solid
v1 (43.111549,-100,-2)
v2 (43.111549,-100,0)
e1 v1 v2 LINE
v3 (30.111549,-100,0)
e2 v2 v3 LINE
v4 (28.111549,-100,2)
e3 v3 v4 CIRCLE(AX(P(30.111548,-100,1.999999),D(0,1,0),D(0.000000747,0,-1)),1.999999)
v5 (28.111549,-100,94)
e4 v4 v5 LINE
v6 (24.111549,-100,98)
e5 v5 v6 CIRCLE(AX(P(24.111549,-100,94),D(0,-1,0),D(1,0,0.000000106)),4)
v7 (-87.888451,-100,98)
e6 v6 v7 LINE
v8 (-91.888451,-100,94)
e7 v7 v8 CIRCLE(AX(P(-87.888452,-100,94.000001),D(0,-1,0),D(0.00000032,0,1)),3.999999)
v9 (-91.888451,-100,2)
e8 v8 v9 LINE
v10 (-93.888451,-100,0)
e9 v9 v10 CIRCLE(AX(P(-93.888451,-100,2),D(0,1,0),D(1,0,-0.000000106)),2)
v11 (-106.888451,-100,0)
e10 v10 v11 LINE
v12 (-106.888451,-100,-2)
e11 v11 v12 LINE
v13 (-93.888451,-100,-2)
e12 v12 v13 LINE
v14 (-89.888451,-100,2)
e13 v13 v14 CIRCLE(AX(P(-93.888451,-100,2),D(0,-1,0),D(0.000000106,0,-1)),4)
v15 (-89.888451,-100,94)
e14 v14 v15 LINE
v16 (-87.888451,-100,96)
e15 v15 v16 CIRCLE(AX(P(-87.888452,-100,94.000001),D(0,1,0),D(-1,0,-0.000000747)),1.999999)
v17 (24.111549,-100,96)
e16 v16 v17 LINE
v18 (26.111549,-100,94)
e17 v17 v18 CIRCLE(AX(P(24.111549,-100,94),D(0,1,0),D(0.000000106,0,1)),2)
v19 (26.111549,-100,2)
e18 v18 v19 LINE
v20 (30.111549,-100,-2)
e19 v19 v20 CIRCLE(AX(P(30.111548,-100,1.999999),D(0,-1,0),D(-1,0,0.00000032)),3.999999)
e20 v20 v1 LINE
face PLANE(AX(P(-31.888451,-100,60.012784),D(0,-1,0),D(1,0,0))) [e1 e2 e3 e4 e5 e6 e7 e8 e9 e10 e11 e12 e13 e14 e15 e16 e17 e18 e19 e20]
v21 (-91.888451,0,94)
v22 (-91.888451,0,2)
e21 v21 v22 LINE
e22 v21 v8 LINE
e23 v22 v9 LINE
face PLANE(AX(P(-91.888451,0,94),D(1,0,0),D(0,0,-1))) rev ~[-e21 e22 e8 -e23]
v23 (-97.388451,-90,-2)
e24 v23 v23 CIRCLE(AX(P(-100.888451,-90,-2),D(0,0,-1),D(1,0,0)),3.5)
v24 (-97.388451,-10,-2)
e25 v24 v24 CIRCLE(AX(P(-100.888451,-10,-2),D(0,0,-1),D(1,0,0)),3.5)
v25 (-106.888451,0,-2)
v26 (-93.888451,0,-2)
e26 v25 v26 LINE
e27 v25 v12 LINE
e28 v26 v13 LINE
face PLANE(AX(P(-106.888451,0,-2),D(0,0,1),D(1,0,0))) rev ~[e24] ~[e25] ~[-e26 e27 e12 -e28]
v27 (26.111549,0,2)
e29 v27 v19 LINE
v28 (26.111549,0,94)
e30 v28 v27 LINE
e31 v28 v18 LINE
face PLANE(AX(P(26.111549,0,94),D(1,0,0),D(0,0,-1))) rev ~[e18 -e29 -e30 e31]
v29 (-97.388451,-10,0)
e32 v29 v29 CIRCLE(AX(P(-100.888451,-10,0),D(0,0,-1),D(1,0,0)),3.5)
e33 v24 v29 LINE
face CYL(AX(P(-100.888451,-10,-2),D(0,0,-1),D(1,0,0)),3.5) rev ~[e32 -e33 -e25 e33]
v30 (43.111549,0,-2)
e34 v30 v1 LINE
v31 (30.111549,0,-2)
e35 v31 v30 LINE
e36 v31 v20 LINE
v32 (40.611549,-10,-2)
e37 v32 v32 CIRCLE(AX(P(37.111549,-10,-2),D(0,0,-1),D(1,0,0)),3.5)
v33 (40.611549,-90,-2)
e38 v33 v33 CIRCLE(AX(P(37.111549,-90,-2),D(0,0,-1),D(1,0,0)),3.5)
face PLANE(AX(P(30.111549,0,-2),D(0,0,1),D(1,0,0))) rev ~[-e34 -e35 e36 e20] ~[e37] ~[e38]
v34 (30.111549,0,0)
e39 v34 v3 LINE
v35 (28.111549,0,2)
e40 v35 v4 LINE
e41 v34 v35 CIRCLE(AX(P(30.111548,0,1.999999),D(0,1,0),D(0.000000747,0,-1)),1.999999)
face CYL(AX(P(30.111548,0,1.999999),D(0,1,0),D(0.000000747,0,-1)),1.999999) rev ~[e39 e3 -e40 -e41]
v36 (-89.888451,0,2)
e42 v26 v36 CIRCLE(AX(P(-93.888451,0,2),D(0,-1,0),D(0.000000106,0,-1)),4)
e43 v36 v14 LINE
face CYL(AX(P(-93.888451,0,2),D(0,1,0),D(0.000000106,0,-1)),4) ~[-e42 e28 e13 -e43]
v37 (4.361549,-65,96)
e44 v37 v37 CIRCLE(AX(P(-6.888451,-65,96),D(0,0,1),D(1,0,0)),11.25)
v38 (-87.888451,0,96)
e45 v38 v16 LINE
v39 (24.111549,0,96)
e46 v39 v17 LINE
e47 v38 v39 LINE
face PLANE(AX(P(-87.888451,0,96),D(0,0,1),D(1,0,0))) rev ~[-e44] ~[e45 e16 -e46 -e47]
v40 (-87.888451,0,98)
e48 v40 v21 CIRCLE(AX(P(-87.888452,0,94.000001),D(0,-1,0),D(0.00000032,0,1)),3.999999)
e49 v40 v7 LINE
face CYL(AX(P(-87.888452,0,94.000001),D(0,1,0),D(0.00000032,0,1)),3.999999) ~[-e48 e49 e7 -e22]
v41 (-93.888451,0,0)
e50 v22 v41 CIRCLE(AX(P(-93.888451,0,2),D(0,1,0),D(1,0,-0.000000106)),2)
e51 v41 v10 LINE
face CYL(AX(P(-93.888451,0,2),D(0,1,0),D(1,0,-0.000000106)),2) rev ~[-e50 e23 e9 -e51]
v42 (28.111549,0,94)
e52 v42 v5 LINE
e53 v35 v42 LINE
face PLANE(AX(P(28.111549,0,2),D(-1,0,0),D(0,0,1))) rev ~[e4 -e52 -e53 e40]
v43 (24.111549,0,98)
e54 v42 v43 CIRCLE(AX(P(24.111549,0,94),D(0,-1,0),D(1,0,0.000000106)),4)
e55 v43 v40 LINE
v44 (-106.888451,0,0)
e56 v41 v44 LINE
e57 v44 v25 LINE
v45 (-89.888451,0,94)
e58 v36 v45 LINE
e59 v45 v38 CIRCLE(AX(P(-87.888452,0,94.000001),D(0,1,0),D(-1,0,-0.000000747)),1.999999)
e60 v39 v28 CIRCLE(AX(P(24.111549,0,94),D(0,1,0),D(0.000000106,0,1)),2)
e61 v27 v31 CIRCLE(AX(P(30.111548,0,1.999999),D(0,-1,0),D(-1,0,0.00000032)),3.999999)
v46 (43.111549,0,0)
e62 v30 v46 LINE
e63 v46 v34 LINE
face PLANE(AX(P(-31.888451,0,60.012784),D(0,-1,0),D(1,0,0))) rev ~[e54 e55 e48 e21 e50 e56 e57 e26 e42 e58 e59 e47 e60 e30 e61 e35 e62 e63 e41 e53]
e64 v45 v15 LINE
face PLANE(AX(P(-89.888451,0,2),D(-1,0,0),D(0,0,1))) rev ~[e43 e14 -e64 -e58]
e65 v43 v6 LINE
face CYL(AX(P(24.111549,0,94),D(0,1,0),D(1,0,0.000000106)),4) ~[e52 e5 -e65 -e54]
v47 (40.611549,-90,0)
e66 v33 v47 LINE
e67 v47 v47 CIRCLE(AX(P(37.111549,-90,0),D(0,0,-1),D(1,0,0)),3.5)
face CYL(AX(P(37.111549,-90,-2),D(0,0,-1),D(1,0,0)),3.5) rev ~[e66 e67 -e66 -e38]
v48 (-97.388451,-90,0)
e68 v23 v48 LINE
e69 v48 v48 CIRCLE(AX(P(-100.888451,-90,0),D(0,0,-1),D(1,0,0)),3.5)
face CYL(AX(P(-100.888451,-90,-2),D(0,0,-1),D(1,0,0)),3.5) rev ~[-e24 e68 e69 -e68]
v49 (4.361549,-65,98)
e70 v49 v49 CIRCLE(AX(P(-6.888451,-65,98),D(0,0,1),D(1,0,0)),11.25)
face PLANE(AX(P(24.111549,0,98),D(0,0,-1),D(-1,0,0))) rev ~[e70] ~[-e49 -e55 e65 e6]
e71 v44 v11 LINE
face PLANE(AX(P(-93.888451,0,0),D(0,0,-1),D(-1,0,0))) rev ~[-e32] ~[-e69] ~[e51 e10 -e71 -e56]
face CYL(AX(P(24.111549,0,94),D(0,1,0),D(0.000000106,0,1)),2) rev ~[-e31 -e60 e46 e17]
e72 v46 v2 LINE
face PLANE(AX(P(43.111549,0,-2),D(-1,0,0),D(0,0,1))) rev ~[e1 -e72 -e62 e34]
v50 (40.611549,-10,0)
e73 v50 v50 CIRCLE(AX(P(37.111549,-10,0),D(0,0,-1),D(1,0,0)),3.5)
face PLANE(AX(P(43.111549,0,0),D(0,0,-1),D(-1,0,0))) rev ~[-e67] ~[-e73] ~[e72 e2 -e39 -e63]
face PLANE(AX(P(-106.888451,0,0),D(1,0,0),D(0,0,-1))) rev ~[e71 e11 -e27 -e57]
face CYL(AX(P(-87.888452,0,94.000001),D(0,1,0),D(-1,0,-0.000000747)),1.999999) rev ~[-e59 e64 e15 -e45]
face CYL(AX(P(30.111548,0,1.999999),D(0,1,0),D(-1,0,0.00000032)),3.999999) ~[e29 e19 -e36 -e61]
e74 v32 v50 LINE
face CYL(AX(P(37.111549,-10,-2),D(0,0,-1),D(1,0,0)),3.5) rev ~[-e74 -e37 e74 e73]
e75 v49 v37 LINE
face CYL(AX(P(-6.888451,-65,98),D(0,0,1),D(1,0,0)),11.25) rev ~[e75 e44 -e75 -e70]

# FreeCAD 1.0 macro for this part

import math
import FreeCAD as App
import Part
import Sketcher
from FreeCAD import Vector

doc = App.newDocument("Part")
body = doc.addObject("PartDesign::Body", "Body")

# Sketch on XZ plane
sketch1 = body.newObject("Sketcher::SketchObject", "Sketch")
sketch1.AttachmentSupport = (doc.getObject("XZ_Plane"), [""])
sketch1.MapMode = "FlatFace"
sketch1.addGeometry(Part.LineSegment(Vector(-93.9, 0, 0), Vector(-106.9, 0, 0)), False)
sketch1.addGeometry(Part.LineSegment(Vector(-106.9, 0, 0), Vector(-106.9, -2, 0)), False)
sketch1.addGeometry(Part.LineSegment(Vector(-106.9, -2, 0), Vector(-93.9, -2, 0)), False)
sketch1.addGeometry(Part.ArcOfCircle(Part.Circle(Vector(-93.9, 2, 0), Vector(0, 0, 1), 4), math.radians(-90), math.radians(0)), False)
sketch1.addGeometry(Part.LineSegment(Vector(-89.9, 2, 0), Vector(-89.9, 94, 0)), False)
sketch1.addGeometry(Part.ArcOfCircle(Part.Circle(Vector(-87.9, 94, 0), Vector(0, 0, 1), 2), math.radians(90), math.radians(180)), False)
sketch1.addGeometry(Part.LineSegment(Vector(-87.9, 96, 0), Vector(24.1, 96, 0)), False)
sketch1.addGeometry(Part.ArcOfCircle(Part.Circle(Vector(24.1, 94, 0), Vector(0, 0, 1), 2), math.radians(0), math.radians(90)), False)
sketch1.addGeometry(Part.LineSegment(Vector(26.1, 94, 0), Vector(26.1, 2, 0)), False)
sketch1.addGeometry(Part.ArcOfCircle(Part.Circle(Vector(30.1, 2, 0), Vector(0, 0, 1), 4), math.radians(180), math.radians(270)), False)
sketch1.addGeometry(Part.LineSegment(Vector(30.1, -2, 0), Vector(43.1, -2, 0)), False)
sketch1.addGeometry(Part.LineSegment(Vector(43.1, -2, 0), Vector(43.1, 0, 0)), False)
sketch1.addGeometry(Part.LineSegment(Vector(43.1, 0, 0), Vector(30.1, 0, 0)), False)
sketch1.addGeometry(Part.ArcOfCircle(Part.Circle(Vector(30.1, 2, 0), Vector(0, 0, 1), 2), math.radians(180), math.radians(270)), False)
sketch1.addGeometry(Part.LineSegment(Vector(28.1, 2, 0), Vector(28.1, 94, 0)), False)
sketch1.addGeometry(Part.ArcOfCircle(Part.Circle(Vector(24.1, 94, 0), Vector(0, 0, 1), 4), math.radians(0), math.radians(90)), False)
sketch1.addGeometry(Part.LineSegment(Vector(24.1, 98, 0), Vector(-87.9, 98, 0)), False)
sketch1.addGeometry(Part.ArcOfCircle(Part.Circle(Vector(-87.9, 94, 0), Vector(0, 0, 1), 4), math.radians(90), math.radians(180)), False)
sketch1.addGeometry(Part.LineSegment(Vector(-91.9, 94, 0), Vector(-91.9, 2, 0)), False)
sketch1.addGeometry(Part.ArcOfCircle(Part.Circle(Vector(-93.9, 2, 0), Vector(0, 0, 1), 2), math.radians(-90), math.radians(0)), False)
sketch1.addConstraint(Sketcher.Constraint("Coincident", 0, 2, 1, 1))
sketch1.addConstraint(Sketcher.Constraint("Coincident", 1, 2, 2, 1))
sketch1.addConstraint(Sketcher.Constraint("Tangent", 2, 2, 3, 1))
sketch1.addConstraint(Sketcher.Constraint("Tangent", 3, 2, 4, 1))
sketch1.addConstraint(Sketcher.Constraint("Tangent", 4, 2, 5, 2))
sketch1.addConstraint(Sketcher.Constraint("Tangent", 5, 1, 6, 1))
sketch1.addConstraint(Sketcher.Constraint("Tangent", 6, 2, 7, 2))
sketch1.addConstraint(Sketcher.Constraint("Tangent", 7, 1, 8, 1))
sketch1.addConstraint(Sketcher.Constraint("Tangent", 8, 2, 9, 1))
sketch1.addConstraint(Sketcher.Constraint("Tangent", 9, 2, 10, 1))
sketch1.addConstraint(Sketcher.Constraint("Coincident", 10, 2, 11, 1))
sketch1.addConstraint(Sketcher.Constraint("Coincident", 11, 2, 12, 1))
sketch1.addConstraint(Sketcher.Constraint("Tangent", 12, 2, 13, 2))
sketch1.addConstraint(Sketcher.Constraint("Tangent", 13, 1, 14, 1))
sketch1.addConstraint(Sketcher.Constraint("Tangent", 14, 2, 15, 1))
sketch1.addConstraint(Sketcher.Constraint("Tangent", 15, 2, 16, 1))
sketch1.addConstraint(Sketcher.Constraint("Tangent", 16, 2, 17, 1))
sketch1.addConstraint(Sketcher.Constraint("Tangent", 17, 2, 18, 1))
sketch1.addConstraint(Sketcher.Constraint("Tangent", 18, 2, 19, 2))
sketch1.addConstraint(Sketcher.Constraint("Tangent", 19, 1, 0, 1))
sketch1.addConstraint(Sketcher.Constraint("Horizontal", 0))
sketch1.addConstraint(Sketcher.Constraint("Vertical", 1))
sketch1.addConstraint(Sketcher.Constraint("Horizontal", 2))
sketch1.addConstraint(Sketcher.Constraint("Vertical", 4))
sketch1.addConstraint(Sketcher.Constraint("Horizontal", 6))
sketch1.addConstraint(Sketcher.Constraint("Vertical", 8))
sketch1.addConstraint(Sketcher.Constraint("Horizontal", 10))
sketch1.addConstraint(Sketcher.Constraint("Vertical", 11))
sketch1.addConstraint(Sketcher.Constraint("Horizontal", 12))
sketch1.addConstraint(Sketcher.Constraint("Vertical", 14))
sketch1.addConstraint(Sketcher.Constraint("Horizontal", 16))
sketch1.addConstraint(Sketcher.Constraint("Vertical", 18))
sketch1.addConstraint(Sketcher.Constraint("Coincident", 13, 3, 9, 3))
sketch1.addConstraint(Sketcher.Constraint("Coincident", 15, 3, 7, 3))
sketch1.addConstraint(Sketcher.Constraint("Coincident", 17, 3, 5, 3))
sketch1.addConstraint(Sketcher.Constraint("Coincident", 19, 3, 3, 3))
sketch1.addConstraint(Sketcher.Constraint("Equal", 5, 7))
sketch1.addConstraint(Sketcher.Constraint("Equal", 3, 9))
sketch1.addConstraint(Sketcher.Constraint("Equal", 7, 13))
sketch1.addConstraint(Sketcher.Constraint("PointOnObject", 0, 2, -1))
sketch1.addConstraint(Sketcher.Constraint("PointOnObject", 11, 2, -1))
sketch1.addConstraint(Sketcher.Constraint("Equal", 2, 10))
sketch1.addConstraint(Sketcher.Constraint("Radius", 3, 4.0))
sketch1.addConstraint(Sketcher.Constraint("Radius", 5, 1.999999))
sketch1.addConstraint(Sketcher.Constraint("DistanceX", 0, 2, 0, 1, 13.0))
sketch1.addConstraint(Sketcher.Constraint("DistanceX", 6, 1, 6, 2, 112.0))
sketch1.addConstraint(Sketcher.Constraint("DistanceY", 4, 1, 4, 2, 92.0))
sketch1.addConstraint(Sketcher.Constraint("DistanceX", 3, 3, -1, 1, 93.888451))
pad1 = body.newObject("PartDesign::Pad", "Pad")
pad1.Profile = sketch1
pad1.Length = 100

# Sketch on XY plane
sketch2 = body.newObject("Sketcher::SketchObject", "Sketch001")
sketch2.AttachmentSupport = (doc.getObject("XY_Plane"), [""])
sketch2.MapMode = "FlatFace"
sketch2.AttachmentOffset = App.Placement(Vector(0, 0, 98), App.Rotation())
sketch2.addGeometry(Part.Circle(Vector(-7, -65, 0), Vector(0, 0, 1), 11), False)
sketch2.addConstraint(Sketcher.Constraint("Diameter", 0, 22.5))
sketch2.addConstraint(Sketcher.Constraint("DistanceY", 0, 3, -1, 1, 65.0))
sketch2.addConstraint(Sketcher.Constraint("DistanceX", 0, 3, -1, 1, 6.888451))
pocket1 = body.newObject("PartDesign::Pocket", "Pocket")
pocket1.Profile = sketch2
pocket1.Length = 25

# Sketch on XY plane
sketch3 = body.newObject("Sketcher::SketchObject", "Sketch002")
sketch3.AttachmentSupport = (doc.getObject("XY_Plane"), [""])
sketch3.MapMode = "FlatFace"
sketch3.AttachmentOffset = App.Placement(Vector(0, 0, -2), App.Rotation())
sketch3.addGeometry(Part.Circle(Vector(37.1, -90, 0), Vector(0, 0, 1), 3.5), False)
sketch3.addGeometry(Part.Circle(Vector(37.1, -10, 0), Vector(0, 0, 1), 3.5), False)
sketch3.addGeometry(Part.Circle(Vector(-100.9, -10, 0), Vector(0, 0, 1), 3.5), False)
sketch3.addGeometry(Part.Circle(Vector(-100.9, -90, 0), Vector(0, 0, 1), 3.5), False)
sketch3.addConstraint(Sketcher.Constraint("Equal", 0, 1))
sketch3.addConstraint(Sketcher.Constraint("Equal", 1, 2))
sketch3.addConstraint(Sketcher.Constraint("Equal", 2, 3))
sketch3.addConstraint(Sketcher.Constraint("Horizontal", 1, 3, 2, 3))
sketch3.addConstraint(Sketcher.Constraint("Horizontal", 0, 3, 3, 3))
sketch3.addConstraint(Sketcher.Constraint("Vertical", 0, 3, 1, 3))
sketch3.addConstraint(Sketcher.Constraint("Vertical", 2, 3, 3, 3))
sketch3.addConstraint(Sketcher.Constraint("Diameter", 0, 7.0))
sketch3.addConstraint(Sketcher.Constraint("DistanceY", 0, 3, -1, 1, 90.0))
sketch3.addConstraint(Sketcher.Constraint("DistanceY", 1, 3, -1, 1, 10.0))
sketch3.addConstraint(Sketcher.Constraint("DistanceX", 2, 3, 1, 3, 138.0))
sketch3.addConstraint(Sketcher.Constraint("DistanceX", -1, 1, 0, 3, 37.111549))
pocket2 = body.newObject("PartDesign::Pocket", "Pocket001")
pocket2.Profile = sketch3
pocket2.Length = 25
pocket2.Reversed = True

doc.recompute()
